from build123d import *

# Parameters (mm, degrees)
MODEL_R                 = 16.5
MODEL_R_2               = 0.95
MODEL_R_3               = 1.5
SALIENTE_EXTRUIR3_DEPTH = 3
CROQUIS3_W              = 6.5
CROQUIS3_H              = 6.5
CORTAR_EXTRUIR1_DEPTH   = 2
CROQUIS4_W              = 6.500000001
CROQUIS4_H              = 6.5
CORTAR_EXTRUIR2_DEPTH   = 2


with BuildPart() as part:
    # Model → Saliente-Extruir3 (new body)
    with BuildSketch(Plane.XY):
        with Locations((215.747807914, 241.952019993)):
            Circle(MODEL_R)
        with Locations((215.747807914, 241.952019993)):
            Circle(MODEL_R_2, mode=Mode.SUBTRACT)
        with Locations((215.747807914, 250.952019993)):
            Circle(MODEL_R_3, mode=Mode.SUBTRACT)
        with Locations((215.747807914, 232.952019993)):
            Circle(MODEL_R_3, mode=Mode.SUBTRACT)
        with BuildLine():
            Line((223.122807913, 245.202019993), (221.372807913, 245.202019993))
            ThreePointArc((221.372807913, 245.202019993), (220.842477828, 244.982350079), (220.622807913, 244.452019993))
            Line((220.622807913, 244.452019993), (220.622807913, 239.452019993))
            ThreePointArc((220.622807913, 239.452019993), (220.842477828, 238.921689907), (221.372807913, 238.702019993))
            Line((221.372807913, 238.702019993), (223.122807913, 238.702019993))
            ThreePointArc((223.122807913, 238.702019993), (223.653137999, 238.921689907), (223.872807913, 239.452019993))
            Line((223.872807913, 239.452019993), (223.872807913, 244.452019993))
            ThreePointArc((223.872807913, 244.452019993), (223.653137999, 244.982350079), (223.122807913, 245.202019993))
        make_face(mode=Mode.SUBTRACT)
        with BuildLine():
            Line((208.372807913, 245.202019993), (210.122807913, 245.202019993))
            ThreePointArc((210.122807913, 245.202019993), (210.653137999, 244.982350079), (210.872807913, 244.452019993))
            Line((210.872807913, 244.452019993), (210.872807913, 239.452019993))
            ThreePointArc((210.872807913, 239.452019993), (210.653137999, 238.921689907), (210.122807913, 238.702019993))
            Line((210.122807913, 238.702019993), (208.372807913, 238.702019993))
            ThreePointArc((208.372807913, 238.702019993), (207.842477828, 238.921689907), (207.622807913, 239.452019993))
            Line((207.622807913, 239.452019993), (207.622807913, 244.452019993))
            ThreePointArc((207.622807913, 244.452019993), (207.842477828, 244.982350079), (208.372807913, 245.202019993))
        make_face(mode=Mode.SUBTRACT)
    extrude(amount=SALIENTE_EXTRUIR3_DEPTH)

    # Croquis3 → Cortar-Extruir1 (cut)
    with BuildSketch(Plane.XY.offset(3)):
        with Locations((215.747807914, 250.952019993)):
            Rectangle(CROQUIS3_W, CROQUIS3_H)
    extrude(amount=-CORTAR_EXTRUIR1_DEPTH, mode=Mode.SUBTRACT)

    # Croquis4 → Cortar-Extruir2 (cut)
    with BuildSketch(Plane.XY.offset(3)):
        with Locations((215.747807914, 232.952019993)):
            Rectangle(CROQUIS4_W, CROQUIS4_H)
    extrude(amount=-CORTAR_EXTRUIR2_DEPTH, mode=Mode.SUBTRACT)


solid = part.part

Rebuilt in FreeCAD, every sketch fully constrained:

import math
import FreeCAD as App
import Part
import Sketcher
from FreeCAD import Vector
Q = App.Units.Quantity


def add_polygon(sketch, points):
    """Adds a closed chain of lines whose ends are joined by coincident constraints."""
    first, n = sketch.GeometryCount, len(points)
    for a, b in zip(points, points[1:] + points[:1]):
        sketch.addGeometry(Part.LineSegment(App.Vector(*a, 0), App.Vector(*b, 0)), False)
    for i in range(n):
        sketch.addConstraint(Sketcher.Constraint("Coincident", first + i, 2, first + (i + 1) % n, 1))

doc = App.newDocument("Part")
body = doc.addObject("PartDesign::Body", "Body")

sketch1 = body.newObject("Sketcher::SketchObject", "Sketch")
sketch1.AttachmentSupport = (doc.getObject("XY_Plane"), [""])
sketch1.MapMode = "FlatFace"
sketch1.addGeometry(Part.Circle(Vector(215.747808, 241.95202, 0), Vector(0, 0, 1), 16.5), False)
sketch1.addGeometry(Part.Circle(Vector(215.747808, 232.95202, 0), Vector(0, 0, 1), 1.5), False)
sketch1.addGeometry(Part.ArcOfCircle(Part.Circle(Vector(208.372808, 244.45202, 0), Vector(0, 0, 1), 0.75), math.radians(90), math.radians(180)), False)
sketch1.addGeometry(Part.LineSegment(Vector(208.372808, 245.20202, 0), Vector(210.122808, 245.20202, 0)), False)
sketch1.addGeometry(Part.ArcOfCircle(Part.Circle(Vector(210.122808, 244.45202, 0), Vector(0, 0, 1), 0.75), math.radians(0), math.radians(90)), False)
sketch1.addGeometry(Part.LineSegment(Vector(210.872808, 244.45202, 0), Vector(210.872808, 239.45202, 0)), False)
sketch1.addGeometry(Part.ArcOfCircle(Part.Circle(Vector(210.122808, 239.45202, 0), Vector(0, 0, 1), 0.75), math.radians(-90), math.radians(0)), False)
sketch1.addGeometry(Part.LineSegment(Vector(210.122808, 238.70202, 0), Vector(208.372808, 238.70202, 0)), False)
sketch1.addGeometry(Part.ArcOfCircle(Part.Circle(Vector(208.372808, 239.45202, 0), Vector(0, 0, 1), 0.75), math.radians(-180), math.radians(-90)), False)
sketch1.addGeometry(Part.LineSegment(Vector(207.622808, 239.45202, 0), Vector(207.622808, 244.45202, 0)), False)
sketch1.addGeometry(Part.Circle(Vector(215.747808, 241.95202, 0), Vector(0, 0, 1), 0.95), False)
sketch1.addGeometry(Part.LineSegment(Vector(221.372808, 245.20202, 0), Vector(223.122808, 245.20202, 0)), False)
sketch1.addGeometry(Part.ArcOfCircle(Part.Circle(Vector(223.122808, 244.45202, 0), Vector(0, 0, 1), 0.75), math.radians(0), math.radians(90)), False)
sketch1.addGeometry(Part.LineSegment(Vector(223.872808, 244.45202, 0), Vector(223.872808, 239.45202, 0)), False)
sketch1.addGeometry(Part.ArcOfCircle(Part.Circle(Vector(223.122808, 239.45202, 0), Vector(0, 0, 1), 0.75), math.radians(-90), math.radians(0)), False)
sketch1.addGeometry(Part.LineSegment(Vector(223.122808, 238.70202, 0), Vector(221.372808, 238.70202, 0)), False)
sketch1.addGeometry(Part.ArcOfCircle(Part.Circle(Vector(221.372808, 239.45202, 0), Vector(0, 0, 1), 0.75), math.radians(-180), math.radians(-90)), False)
sketch1.addGeometry(Part.LineSegment(Vector(220.622808, 239.45202, 0), Vector(220.622808, 244.45202, 0)), False)
sketch1.addGeometry(Part.ArcOfCircle(Part.Circle(Vector(221.372808, 244.45202, 0), Vector(0, 0, 1), 0.75), math.radians(90), math.radians(180)), False)
sketch1.addGeometry(Part.Circle(Vector(215.747808, 250.95202, 0), Vector(0, 0, 1), 1.5), False)
sketch1.addConstraint(Sketcher.Constraint("Tangent", 2, 1, 3, 1))
sketch1.addConstraint(Sketcher.Constraint("Tangent", 3, 2, 4, 2))
sketch1.addConstraint(Sketcher.Constraint("Tangent", 4, 1, 5, 1))
sketch1.addConstraint(Sketcher.Constraint("Tangent", 5, 2, 6, 2))
sketch1.addConstraint(Sketcher.Constraint("Tangent", 6, 1, 7, 1))
sketch1.addConstraint(Sketcher.Constraint("Tangent", 7, 2, 8, 2))
sketch1.addConstraint(Sketcher.Constraint("Tangent", 8, 1, 9, 1))
sketch1.addConstraint(Sketcher.Constraint("Tangent", 9, 2, 2, 2))
sketch1.addConstraint(Sketcher.Constraint("Tangent", 11, 2, 12, 2))
sketch1.addConstraint(Sketcher.Constraint("Tangent", 12, 1, 13, 1))
sketch1.addConstraint(Sketcher.Constraint("Tangent", 13, 2, 14, 2))
sketch1.addConstraint(Sketcher.Constraint("Tangent", 14, 1, 15, 1))
sketch1.addConstraint(Sketcher.Constraint("Tangent", 15, 2, 16, 2))
sketch1.addConstraint(Sketcher.Constraint("Tangent", 16, 1, 17, 1))
sketch1.addConstraint(Sketcher.Constraint("Tangent", 17, 2, 18, 2))
sketch1.addConstraint(Sketcher.Constraint("Tangent", 18, 1, 11, 1))
sketch1.addConstraint(Sketcher.Constraint("Horizontal", 3))
sketch1.addConstraint(Sketcher.Constraint("Vertical", 5))
sketch1.addConstraint(Sketcher.Constraint("Horizontal", 7))
sketch1.addConstraint(Sketcher.Constraint("Vertical", 9))
sketch1.addConstraint(Sketcher.Constraint("Horizontal", 11))
sketch1.addConstraint(Sketcher.Constraint("Vertical", 13))
sketch1.addConstraint(Sketcher.Constraint("Horizontal", 15))
sketch1.addConstraint(Sketcher.Constraint("Vertical", 17))
sketch1.addConstraint(Sketcher.Constraint("Coincident", 10, 3, 0, 3))
sketch1.addConstraint(Sketcher.Constraint("Equal", 2, 4))
sketch1.addConstraint(Sketcher.Constraint("Equal", 4, 6))
sketch1.addConstraint(Sketcher.Constraint("Equal", 6, 8))
sketch1.addConstraint(Sketcher.Constraint("Equal", 8, 12))
sketch1.addConstraint(Sketcher.Constraint("Equal", 12, 14))
sketch1.addConstraint(Sketcher.Constraint("Equal", 14, 16))
sketch1.addConstraint(Sketcher.Constraint("Equal", 16, 18))
sketch1.addConstraint(Sketcher.Constraint("Equal", 1, 19))
sketch1.addConstraint(Sketcher.Constraint("Horizontal", 4, 3, 12, 3))
sketch1.addConstraint(Sketcher.Constraint("Horizontal", 8, 3, 14, 3))
sketch1.addConstraint(Sketcher.Constraint("Vertical", 0, 3, 1, 3))
sketch1.addConstraint(Sketcher.Constraint("Vertical", 10, 3, 19, 3))
sketch1.addConstraint(Sketcher.Constraint("Equal", 7, 11))
sketch1.addConstraint(Sketcher.Constraint("Diameter", 0, Q("33 mm")))
sketch1.addConstraint(Sketcher.Constraint("Diameter", 1, Q("3 mm")))
sketch1.addConstraint(Sketcher.Constraint("Diameter", 10, Q("1.9 mm")))
sketch1.addConstraint(Sketcher.Constraint("DistanceY", 5, 2, 5, 1, Q("5 mm")))
sketch1.addConstraint(Sketcher.Constraint("Radius", 2, Q("0.75 mm")))
sketch1.addConstraint(Sketcher.Constraint("DistanceY", 1, 3, 0, 3, Q("9 mm")))
sketch1.addConstraint(Sketcher.Constraint("DistanceX", 4, 3, 12, 3, Q("13 mm")))
sketch1.addConstraint(Sketcher.Constraint("DistanceY", 0, 3, 19, 3, Q("9 mm")))
sketch1.addConstraint(Sketcher.Constraint("DistanceX", 3, 1, 3, 2, Q("1.75 mm")))
sketch1.addConstraint(Sketcher.Constraint("DistanceY", 0, 3, 2, 3, Q("2.5 mm")))
sketch1.addConstraint(Sketcher.Constraint("DistanceX", 2, 3, 0, 3, Q("7.375 mm")))
sketch1.addConstraint(Sketcher.Constraint("DistanceY", -1, 1, 0, 3, Q("241.95202 mm")))
sketch1.addConstraint(Sketcher.Constraint("DistanceX", -1, 1, 0, 3, Q("215.747808 mm")))
pad1 = body.newObject("PartDesign::Pad", "Pad")
pad1.Profile = sketch1
pad1.Length = 3

sketch2 = body.newObject("Sketcher::SketchObject", "Sketch001")
sketch2.AttachmentSupport = (doc.getObject("XY_Plane"), [""])
sketch2.MapMode = "FlatFace"
sketch2.AttachmentOffset = App.Placement(Vector(0, 0, 3), App.Rotation())
add_polygon(sketch2, [(212.497808, 254.20202), (212.497808, 247.70202), (218.997808, 247.70202), (218.997808, 254.20202)])
sketch2.addConstraint(Sketcher.Constraint("Vertical", 0))
sketch2.addConstraint(Sketcher.Constraint("Horizontal", 1))
sketch2.addConstraint(Sketcher.Constraint("Vertical", 2))
sketch2.addConstraint(Sketcher.Constraint("Horizontal", 3))
sketch2.addConstraint(Sketcher.Constraint("Equal", 3, 0))
sketch2.addConstraint(Sketcher.Constraint("DistanceX", 1, 1, 1, 2, Q("6.5 mm")))
sketch2.addConstraint(Sketcher.Constraint("DistanceY", -1, 1, 0, 2, Q("247.70202 mm")))
sketch2.addConstraint(Sketcher.Constraint("DistanceX", -1, 1, 0, 2, Q("212.497808 mm")))
pocket1 = body.newObject("PartDesign::Pocket", "Pocket")
pocket1.Profile = sketch2
pocket1.Length = 2

sketch3 = body.newObject("Sketcher::SketchObject", "Sketch002")
sketch3.AttachmentSupport = (doc.getObject("XY_Plane"), [""])
sketch3.MapMode = "FlatFace"
sketch3.AttachmentOffset = App.Placement(Vector(0, 0, 3), App.Rotation())
add_polygon(sketch3, [(212.497808, 236.20202), (212.497808, 229.70202), (218.997808, 229.70202), (218.997808, 236.20202)])
sketch3.addConstraint(Sketcher.Constraint("Vertical", 0))
sketch3.addConstraint(Sketcher.Constraint("Horizontal", 1))
sketch3.addConstraint(Sketcher.Constraint("Vertical", 2))
sketch3.addConstraint(Sketcher.Constraint("Horizontal", 3))
sketch3.addConstraint(Sketcher.Constraint("Equal", 3, 0))
sketch3.addConstraint(Sketcher.Constraint("DistanceX", 1, 1, 1, 2, Q("6.5 mm")))
sketch3.addConstraint(Sketcher.Constraint("DistanceY", -1, 1, 0, 2, Q("229.70202 mm")))
sketch3.addConstraint(Sketcher.Constraint("DistanceX", -1, 1, 0, 2, Q("212.497808 mm")))
pocket2 = body.newObject("PartDesign::Pocket", "Pocket001")
pocket2.Profile = sketch3
pocket2.Length = 2

doc.recompute()
